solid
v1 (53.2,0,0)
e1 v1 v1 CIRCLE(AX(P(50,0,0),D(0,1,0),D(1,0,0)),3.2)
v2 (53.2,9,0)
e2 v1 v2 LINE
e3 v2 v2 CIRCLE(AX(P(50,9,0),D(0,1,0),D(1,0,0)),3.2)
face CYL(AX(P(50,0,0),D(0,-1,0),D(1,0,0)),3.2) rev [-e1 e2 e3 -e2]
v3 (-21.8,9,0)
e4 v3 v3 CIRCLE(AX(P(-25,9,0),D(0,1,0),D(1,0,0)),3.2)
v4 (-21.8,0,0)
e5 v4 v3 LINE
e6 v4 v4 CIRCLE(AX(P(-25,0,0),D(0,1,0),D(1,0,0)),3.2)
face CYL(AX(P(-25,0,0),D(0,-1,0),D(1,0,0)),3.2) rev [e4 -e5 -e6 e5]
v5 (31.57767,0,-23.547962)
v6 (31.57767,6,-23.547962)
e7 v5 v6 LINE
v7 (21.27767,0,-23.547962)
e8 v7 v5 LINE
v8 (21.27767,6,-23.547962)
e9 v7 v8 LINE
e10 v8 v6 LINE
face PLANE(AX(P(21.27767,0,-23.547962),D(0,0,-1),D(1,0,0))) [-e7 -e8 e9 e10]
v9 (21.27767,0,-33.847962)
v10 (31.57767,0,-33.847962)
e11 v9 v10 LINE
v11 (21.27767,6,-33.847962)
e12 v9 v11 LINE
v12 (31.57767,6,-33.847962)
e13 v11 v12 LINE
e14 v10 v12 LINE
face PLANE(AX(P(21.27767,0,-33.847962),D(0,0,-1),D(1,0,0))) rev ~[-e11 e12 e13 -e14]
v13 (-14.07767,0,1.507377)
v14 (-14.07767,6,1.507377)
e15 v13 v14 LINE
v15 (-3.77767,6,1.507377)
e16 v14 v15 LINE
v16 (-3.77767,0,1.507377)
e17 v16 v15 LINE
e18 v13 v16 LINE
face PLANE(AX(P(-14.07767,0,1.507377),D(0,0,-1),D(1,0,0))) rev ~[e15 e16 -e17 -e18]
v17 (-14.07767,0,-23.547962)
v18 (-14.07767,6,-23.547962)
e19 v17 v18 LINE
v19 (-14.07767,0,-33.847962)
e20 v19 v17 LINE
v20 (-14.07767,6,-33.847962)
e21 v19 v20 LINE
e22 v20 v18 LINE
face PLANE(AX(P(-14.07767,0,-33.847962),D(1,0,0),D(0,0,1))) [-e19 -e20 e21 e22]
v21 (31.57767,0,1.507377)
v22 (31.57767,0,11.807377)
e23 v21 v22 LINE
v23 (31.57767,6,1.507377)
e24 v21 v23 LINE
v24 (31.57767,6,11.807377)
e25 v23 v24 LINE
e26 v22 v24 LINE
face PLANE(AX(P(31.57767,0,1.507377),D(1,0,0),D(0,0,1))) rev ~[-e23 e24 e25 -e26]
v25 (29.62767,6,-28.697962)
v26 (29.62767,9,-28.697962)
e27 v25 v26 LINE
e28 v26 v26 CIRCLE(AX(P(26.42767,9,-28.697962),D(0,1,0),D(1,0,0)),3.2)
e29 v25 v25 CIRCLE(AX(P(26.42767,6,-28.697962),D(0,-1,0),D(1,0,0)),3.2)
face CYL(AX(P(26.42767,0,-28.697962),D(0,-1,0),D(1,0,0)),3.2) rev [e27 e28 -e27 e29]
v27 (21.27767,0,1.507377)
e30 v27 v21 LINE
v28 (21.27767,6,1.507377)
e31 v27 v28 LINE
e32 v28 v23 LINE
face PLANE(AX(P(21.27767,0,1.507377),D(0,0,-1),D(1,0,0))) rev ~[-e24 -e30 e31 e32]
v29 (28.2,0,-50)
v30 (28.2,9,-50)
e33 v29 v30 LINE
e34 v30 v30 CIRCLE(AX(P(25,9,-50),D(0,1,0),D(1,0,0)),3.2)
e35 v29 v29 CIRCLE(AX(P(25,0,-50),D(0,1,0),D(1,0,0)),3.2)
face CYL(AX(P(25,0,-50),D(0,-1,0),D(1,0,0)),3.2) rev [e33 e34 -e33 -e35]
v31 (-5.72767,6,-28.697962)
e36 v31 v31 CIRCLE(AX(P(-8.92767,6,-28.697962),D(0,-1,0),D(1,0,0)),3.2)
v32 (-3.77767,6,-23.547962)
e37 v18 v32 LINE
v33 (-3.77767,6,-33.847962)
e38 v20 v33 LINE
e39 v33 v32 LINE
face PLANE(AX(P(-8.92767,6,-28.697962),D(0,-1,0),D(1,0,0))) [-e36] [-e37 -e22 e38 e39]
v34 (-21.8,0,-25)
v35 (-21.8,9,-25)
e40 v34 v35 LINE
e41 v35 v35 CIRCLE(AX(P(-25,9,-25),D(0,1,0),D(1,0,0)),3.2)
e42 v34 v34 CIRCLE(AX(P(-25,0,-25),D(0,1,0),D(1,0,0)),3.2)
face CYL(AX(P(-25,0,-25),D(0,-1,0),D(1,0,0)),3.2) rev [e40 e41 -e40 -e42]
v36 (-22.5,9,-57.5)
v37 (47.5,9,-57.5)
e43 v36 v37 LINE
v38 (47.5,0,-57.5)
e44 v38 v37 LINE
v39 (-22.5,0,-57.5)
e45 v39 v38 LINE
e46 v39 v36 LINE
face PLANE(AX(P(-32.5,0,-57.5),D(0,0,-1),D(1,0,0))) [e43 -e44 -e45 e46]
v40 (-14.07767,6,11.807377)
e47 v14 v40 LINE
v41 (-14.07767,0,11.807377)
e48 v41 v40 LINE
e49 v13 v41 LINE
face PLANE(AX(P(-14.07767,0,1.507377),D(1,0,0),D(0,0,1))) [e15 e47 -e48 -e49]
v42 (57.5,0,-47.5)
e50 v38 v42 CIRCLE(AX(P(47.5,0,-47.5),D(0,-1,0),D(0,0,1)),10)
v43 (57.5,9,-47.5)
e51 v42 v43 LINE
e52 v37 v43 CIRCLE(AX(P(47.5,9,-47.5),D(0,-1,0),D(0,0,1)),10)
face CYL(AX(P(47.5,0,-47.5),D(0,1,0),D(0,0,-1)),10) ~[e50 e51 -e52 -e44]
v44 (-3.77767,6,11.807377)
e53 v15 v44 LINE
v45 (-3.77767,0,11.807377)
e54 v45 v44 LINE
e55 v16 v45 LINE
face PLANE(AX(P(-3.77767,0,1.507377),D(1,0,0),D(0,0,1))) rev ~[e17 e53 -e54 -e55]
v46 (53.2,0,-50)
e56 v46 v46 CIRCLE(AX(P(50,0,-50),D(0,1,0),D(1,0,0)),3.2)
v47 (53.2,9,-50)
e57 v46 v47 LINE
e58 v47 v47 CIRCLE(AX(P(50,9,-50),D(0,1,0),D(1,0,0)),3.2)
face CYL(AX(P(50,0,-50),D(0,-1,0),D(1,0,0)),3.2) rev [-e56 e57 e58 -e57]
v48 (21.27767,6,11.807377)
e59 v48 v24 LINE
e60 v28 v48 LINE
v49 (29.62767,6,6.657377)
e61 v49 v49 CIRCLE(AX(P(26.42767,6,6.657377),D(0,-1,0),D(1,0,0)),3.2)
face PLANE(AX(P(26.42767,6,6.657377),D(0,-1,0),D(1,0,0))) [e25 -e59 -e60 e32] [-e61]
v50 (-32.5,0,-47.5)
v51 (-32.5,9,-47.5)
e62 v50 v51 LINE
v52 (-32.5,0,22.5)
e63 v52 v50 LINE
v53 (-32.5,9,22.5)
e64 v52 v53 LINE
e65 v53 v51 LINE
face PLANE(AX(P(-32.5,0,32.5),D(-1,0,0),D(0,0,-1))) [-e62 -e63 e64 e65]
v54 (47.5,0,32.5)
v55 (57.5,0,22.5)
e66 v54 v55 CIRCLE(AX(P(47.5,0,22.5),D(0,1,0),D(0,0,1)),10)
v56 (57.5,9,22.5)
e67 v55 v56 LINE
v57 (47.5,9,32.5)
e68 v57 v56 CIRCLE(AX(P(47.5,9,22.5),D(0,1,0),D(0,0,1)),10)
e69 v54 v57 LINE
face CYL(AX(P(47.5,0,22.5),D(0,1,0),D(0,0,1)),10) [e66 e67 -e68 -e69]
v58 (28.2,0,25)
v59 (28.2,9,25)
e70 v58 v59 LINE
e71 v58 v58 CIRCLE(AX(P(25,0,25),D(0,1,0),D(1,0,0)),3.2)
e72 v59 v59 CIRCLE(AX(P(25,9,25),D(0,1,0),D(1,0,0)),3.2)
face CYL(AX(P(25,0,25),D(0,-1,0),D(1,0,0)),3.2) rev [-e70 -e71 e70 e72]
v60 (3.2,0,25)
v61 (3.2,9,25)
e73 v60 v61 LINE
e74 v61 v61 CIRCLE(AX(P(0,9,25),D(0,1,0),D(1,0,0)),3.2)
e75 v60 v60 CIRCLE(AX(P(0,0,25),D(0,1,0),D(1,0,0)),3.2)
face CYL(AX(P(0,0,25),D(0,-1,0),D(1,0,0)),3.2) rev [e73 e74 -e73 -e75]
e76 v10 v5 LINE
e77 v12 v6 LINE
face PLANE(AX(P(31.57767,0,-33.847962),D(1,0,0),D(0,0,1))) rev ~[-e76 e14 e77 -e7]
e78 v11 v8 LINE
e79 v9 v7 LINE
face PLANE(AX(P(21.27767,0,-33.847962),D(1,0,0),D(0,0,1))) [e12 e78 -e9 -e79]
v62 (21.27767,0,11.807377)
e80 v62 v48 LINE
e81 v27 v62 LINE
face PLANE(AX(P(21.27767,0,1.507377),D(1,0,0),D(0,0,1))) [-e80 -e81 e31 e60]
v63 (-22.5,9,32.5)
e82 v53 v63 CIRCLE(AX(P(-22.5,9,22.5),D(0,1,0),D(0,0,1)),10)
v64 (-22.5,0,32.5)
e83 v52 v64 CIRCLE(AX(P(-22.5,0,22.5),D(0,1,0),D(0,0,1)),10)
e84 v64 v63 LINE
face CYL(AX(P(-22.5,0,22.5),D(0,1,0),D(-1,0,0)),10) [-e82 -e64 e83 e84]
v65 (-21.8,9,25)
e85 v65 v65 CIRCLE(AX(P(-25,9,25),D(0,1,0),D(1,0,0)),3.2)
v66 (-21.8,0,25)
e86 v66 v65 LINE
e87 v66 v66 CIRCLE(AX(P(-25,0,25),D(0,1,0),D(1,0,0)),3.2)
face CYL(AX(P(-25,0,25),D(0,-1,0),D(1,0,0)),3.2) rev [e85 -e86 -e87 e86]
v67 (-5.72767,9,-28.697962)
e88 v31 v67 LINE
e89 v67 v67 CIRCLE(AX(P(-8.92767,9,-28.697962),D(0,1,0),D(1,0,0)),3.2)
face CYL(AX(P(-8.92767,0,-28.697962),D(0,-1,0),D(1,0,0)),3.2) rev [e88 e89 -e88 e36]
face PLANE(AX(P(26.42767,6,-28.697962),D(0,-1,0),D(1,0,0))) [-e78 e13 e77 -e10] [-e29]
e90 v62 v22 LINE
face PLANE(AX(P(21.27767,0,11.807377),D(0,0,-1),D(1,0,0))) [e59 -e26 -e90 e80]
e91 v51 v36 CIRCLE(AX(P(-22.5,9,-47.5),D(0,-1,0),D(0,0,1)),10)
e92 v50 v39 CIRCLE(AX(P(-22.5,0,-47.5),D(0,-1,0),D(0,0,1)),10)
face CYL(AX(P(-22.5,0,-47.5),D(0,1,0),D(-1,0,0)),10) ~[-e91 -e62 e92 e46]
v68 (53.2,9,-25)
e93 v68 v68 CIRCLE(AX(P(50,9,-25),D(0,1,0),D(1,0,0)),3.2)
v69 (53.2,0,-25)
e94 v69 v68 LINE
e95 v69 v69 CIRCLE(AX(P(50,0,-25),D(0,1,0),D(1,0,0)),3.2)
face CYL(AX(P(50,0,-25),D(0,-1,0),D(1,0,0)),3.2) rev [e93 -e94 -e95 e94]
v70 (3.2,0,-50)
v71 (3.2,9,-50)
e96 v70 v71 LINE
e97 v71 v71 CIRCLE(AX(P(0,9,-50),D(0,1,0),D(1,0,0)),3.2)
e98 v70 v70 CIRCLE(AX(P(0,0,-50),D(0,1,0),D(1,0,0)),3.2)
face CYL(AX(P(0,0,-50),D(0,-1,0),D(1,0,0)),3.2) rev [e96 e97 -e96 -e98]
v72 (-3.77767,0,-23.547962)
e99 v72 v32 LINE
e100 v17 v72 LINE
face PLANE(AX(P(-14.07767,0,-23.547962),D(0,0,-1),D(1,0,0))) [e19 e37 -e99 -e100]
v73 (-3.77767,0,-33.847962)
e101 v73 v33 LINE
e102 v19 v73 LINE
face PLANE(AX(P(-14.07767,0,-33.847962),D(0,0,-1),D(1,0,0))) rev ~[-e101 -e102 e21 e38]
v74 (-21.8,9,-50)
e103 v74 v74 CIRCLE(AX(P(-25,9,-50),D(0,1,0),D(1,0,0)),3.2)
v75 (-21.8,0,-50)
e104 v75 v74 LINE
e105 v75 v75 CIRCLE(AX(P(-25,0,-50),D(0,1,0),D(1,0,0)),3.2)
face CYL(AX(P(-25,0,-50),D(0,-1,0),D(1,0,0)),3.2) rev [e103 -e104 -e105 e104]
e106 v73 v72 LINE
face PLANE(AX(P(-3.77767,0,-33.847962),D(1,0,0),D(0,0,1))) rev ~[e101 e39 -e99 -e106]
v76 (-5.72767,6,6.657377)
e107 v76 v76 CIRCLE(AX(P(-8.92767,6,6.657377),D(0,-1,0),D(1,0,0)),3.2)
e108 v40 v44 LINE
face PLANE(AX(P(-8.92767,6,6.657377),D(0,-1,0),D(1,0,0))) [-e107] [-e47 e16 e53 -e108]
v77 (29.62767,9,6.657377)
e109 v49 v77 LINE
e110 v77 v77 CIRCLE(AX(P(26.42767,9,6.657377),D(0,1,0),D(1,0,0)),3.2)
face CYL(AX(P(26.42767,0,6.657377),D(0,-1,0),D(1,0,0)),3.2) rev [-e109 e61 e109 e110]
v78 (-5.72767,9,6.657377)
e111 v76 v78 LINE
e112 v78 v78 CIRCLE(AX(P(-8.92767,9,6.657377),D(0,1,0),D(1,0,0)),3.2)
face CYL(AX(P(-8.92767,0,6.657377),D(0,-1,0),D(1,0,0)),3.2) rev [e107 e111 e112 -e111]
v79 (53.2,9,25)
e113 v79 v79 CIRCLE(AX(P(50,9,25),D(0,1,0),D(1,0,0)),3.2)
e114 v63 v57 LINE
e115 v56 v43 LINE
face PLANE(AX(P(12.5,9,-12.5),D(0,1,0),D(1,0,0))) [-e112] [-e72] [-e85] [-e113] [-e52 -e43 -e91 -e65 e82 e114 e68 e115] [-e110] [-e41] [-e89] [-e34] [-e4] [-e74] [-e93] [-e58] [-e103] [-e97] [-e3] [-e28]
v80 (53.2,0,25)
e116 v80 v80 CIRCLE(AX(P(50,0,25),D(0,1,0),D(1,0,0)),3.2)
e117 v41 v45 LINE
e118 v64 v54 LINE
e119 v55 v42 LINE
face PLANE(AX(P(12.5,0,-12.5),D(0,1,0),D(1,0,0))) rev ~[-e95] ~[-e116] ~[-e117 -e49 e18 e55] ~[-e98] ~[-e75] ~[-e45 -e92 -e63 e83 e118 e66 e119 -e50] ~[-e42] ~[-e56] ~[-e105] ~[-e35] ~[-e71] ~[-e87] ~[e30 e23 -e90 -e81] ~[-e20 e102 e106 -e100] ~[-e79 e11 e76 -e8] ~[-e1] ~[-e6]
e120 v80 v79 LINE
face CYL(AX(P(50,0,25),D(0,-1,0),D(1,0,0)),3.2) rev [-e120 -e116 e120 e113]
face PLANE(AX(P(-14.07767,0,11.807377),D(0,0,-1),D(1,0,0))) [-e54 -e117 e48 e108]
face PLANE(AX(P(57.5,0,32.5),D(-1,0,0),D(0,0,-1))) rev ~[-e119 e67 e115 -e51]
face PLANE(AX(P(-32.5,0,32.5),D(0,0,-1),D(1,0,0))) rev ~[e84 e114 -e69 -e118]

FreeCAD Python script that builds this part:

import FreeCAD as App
import Part
import Sketcher
from FreeCAD import Vector
Q = App.Units.Quantity


def edges_at(feature, points):
    """Names of the edges that pass closest to the given points."""
    edges = feature.Shape.Edges
    near = lambda p: min(range(len(edges)), key=lambda i: edges[i].distToShape(Part.Vertex(*p))[0])
    return sorted({f"Edge{near(p) + 1}" for p in points})

doc = App.newDocument("Part")
body = doc.addObject("PartDesign::Body", "Body")

sketch1 = body.newObject("Sketcher::SketchObject", "Sketch")
sketch1.AttachmentSupport = (doc.getObject("XZ_Plane"), [""])
sketch1.MapMode = "FlatFace"
sketch1.addGeometry(Part.LineSegment(Vector(-32.5, -57.5, 0), Vector(-32.5, 32.5, 0)), False)
sketch1.addGeometry(Part.LineSegment(Vector(-32.5, 32.5, 0), Vector(57.5, 32.5, 0)), False)
sketch1.addGeometry(Part.LineSegment(Vector(57.5, 32.5, 0), Vector(57.5, -57.5, 0)), False)
sketch1.addGeometry(Part.LineSegment(Vector(57.5, -57.5, 0), Vector(-32.5, -57.5, 0)), False)
sketch1.addGeometry(Part.Circle(Vector(-25, 25, 0), Vector(0, 0, 1), 3.2), False)
sketch1.addGeometry(Part.Circle(Vector(0, 25, 0), Vector(0, 0, 1), 3.2), False)
sketch1.addGeometry(Part.Circle(Vector(-25, 0, 0), Vector(0, 0, 1), 3.2), False)
sketch1.addGeometry(Part.Circle(Vector(-8.92767, 6.657377, 0), Vector(0, 0, 1), 3.2), False)
sketch1.addGeometry(Part.Circle(Vector(25, 25, 0), Vector(0, 0, 1), 3.2), False)
sketch1.addGeometry(Part.Circle(Vector(50, 25, 0), Vector(0, 0, 1), 3.2), False)
sketch1.addGeometry(Part.Circle(Vector(26.42767, 6.657377, 0), Vector(0, 0, 1), 3.2), False)
sketch1.addGeometry(Part.Circle(Vector(50, 0, 0), Vector(0, 0, 1), 3.2), False)
sketch1.addGeometry(Part.Circle(Vector(-25, -25, 0), Vector(0, 0, 1), 3.2), False)
sketch1.addGeometry(Part.Circle(Vector(-8.92767, -28.697962, 0), Vector(0, 0, 1), 3.2), False)
sketch1.addGeometry(Part.Circle(Vector(-25, -50, 0), Vector(0, 0, 1), 3.2), False)
sketch1.addGeometry(Part.Circle(Vector(0, -50, 0), Vector(0, 0, 1), 3.2), False)
sketch1.addGeometry(Part.Circle(Vector(26.42767, -28.697962, 0), Vector(0, 0, 1), 3.2), False)
sketch1.addGeometry(Part.Circle(Vector(50, -25, 0), Vector(0, 0, 1), 3.2), False)
sketch1.addGeometry(Part.Circle(Vector(25, -50, 0), Vector(0, 0, 1), 3.2), False)
sketch1.addGeometry(Part.Circle(Vector(50, -50, 0), Vector(0, 0, 1), 3.2), False)
sketch1.addConstraint(Sketcher.Constraint("Coincident", 0, 2, 1, 1))
sketch1.addConstraint(Sketcher.Constraint("Coincident", 1, 2, 2, 1))
sketch1.addConstraint(Sketcher.Constraint("Coincident", 2, 2, 3, 1))
sketch1.addConstraint(Sketcher.Constraint("Coincident", 3, 2, 0, 1))
sketch1.addConstraint(Sketcher.Constraint("Vertical", 0))
sketch1.addConstraint(Sketcher.Constraint("Horizontal", 1))
sketch1.addConstraint(Sketcher.Constraint("Vertical", 2))
sketch1.addConstraint(Sketcher.Constraint("Horizontal", 3))
sketch1.addConstraint(Sketcher.Constraint("Equal", 4, 5))
sketch1.addConstraint(Sketcher.Constraint("Equal", 5, 6))
sketch1.addConstraint(Sketcher.Constraint("Equal", 6, 7))
sketch1.addConstraint(Sketcher.Constraint("Equal", 7, 8))
sketch1.addConstraint(Sketcher.Constraint("Equal", 8, 9))
sketch1.addConstraint(Sketcher.Constraint("Equal", 9, 10))
sketch1.addConstraint(Sketcher.Constraint("Equal", 10, 11))
sketch1.addConstraint(Sketcher.Constraint("Equal", 11, 12))
sketch1.addConstraint(Sketcher.Constraint("Equal", 12, 13))
sketch1.addConstraint(Sketcher.Constraint("Equal", 13, 14))
sketch1.addConstraint(Sketcher.Constraint("Equal", 14, 15))
sketch1.addConstraint(Sketcher.Constraint("Equal", 15, 16))
sketch1.addConstraint(Sketcher.Constraint("Equal", 16, 17))
sketch1.addConstraint(Sketcher.Constraint("Equal", 17, 18))
sketch1.addConstraint(Sketcher.Constraint("Equal", 18, 19))
sketch1.addConstraint(Sketcher.Constraint("Symmetric", 8, 3, 12, 3, -1, 1))
sketch1.addConstraint(Sketcher.Constraint("Symmetric", 4, 3, 8, 3, -2))
sketch1.addConstraint(Sketcher.Constraint("Symmetric", 14, 3, 18, 3, -2))
sketch1.addConstraint(Sketcher.Constraint("Symmetric", 9, 3, 17, 3, -1))
sketch1.addConstraint(Sketcher.Constraint("PointOnObject", 5, 3, -2))
sketch1.addConstraint(Sketcher.Constraint("PointOnObject", 6, 3, -1))
sketch1.addConstraint(Sketcher.Constraint("PointOnObject", 11, 3, -1))
sketch1.addConstraint(Sketcher.Constraint("PointOnObject", 15, 3, -2))
sketch1.addConstraint(Sketcher.Constraint("Horizontal", 4, 3, 5, 3))
sketch1.addConstraint(Sketcher.Constraint("Horizontal", 8, 3, 9, 3))
sketch1.addConstraint(Sketcher.Constraint("Horizontal", 7, 3, 10, 3))
sketch1.addConstraint(Sketcher.Constraint("Horizontal", 14, 3, 15, 3))
sketch1.addConstraint(Sketcher.Constraint("Horizontal", 13, 3, 16, 3))
sketch1.addConstraint(Sketcher.Constraint("Horizontal", 18, 3, 19, 3))
sketch1.addConstraint(Sketcher.Constraint("Vertical", 4, 3, 6, 3))
sketch1.addConstraint(Sketcher.Constraint("Vertical", 9, 3, 11, 3))
sketch1.addConstraint(Sketcher.Constraint("Vertical", 7, 3, 13, 3))
sketch1.addConstraint(Sketcher.Constraint("Vertical", 12, 3, 14, 3))
sketch1.addConstraint(Sketcher.Constraint("Vertical", 10, 3, 16, 3))
sketch1.addConstraint(Sketcher.Constraint("Vertical", 17, 3, 19, 3))
sketch1.addConstraint(Sketcher.Constraint("Equal", 3, 0))
sketch1.addConstraint(Sketcher.Constraint("Diameter", 4, Q("6.4 mm")))
sketch1.addConstraint(Sketcher.Constraint("DistanceX", 1, 1, 1, 2, Q("90 mm")))
sketch1.addConstraint(Sketcher.Constraint("DistanceX", 4, 3, -1, 1, Q("25 mm")))
sketch1.addConstraint(Sketcher.Constraint("DistanceY", -1, 1, 4, 3, Q("25 mm")))
sketch1.addConstraint(Sketcher.Constraint("DistanceX", -1, 1, 9, 3, Q("50 mm")))
sketch1.addConstraint(Sketcher.Constraint("DistanceY", 14, 3, -1, 1, Q("50 mm")))
sketch1.addConstraint(Sketcher.Constraint("DistanceX", 0, 2, -1, 1, Q("32.5 mm")))
sketch1.addConstraint(Sketcher.Constraint("DistanceY", -1, 1, 0, 2, Q("32.5 mm")))
sketch1.addConstraint(Sketcher.Constraint("DistanceX", 7, 3, -1, 1, Q("8.92767 mm")))
sketch1.addConstraint(Sketcher.Constraint("DistanceX", -1, 1, 10, 3, Q("26.42767 mm")))
sketch1.addConstraint(Sketcher.Constraint("DistanceY", 13, 3, -1, 1, Q("28.697962 mm")))
sketch1.addConstraint(Sketcher.Constraint("DistanceY", 13, 3, 7, 3, Q("35.355339 mm")))
pad1 = body.newObject("PartDesign::Pad", "Pad")
pad1.Profile = sketch1
pad1.Length = 9
pad1.Reversed = True

sketch2 = body.newObject("Sketcher::SketchObject", "Sketch001")
sketch2.AttachmentSupport = (doc.getObject("XZ_Plane"), [""])
sketch2.MapMode = "FlatFace"
sketch2.addGeometry(Part.LineSegment(Vector(-14.07767, 11.807377, 0), Vector(-14.07767, 1.507377, 0)), False)
sketch2.addGeometry(Part.LineSegment(Vector(-14.07767, 1.507377, 0), Vector(-3.77767, 1.507377, 0)), False)
sketch2.addGeometry(Part.LineSegment(Vector(-3.77767, 1.507377, 0), Vector(-3.77767, 11.807377, 0)), False)
sketch2.addGeometry(Part.LineSegment(Vector(-3.77767, 11.807377, 0), Vector(-14.07767, 11.807377, 0)), False)
sketch2.addGeometry(Part.LineSegment(Vector(21.27767, 11.807377, 0), Vector(21.27767, 1.507377, 0)), False)
sketch2.addGeometry(Part.LineSegment(Vector(21.27767, 1.507377, 0), Vector(31.57767, 1.507377, 0)), False)
sketch2.addGeometry(Part.LineSegment(Vector(31.57767, 1.507377, 0), Vector(31.57767, 11.807377, 0)), False)
sketch2.addGeometry(Part.LineSegment(Vector(31.57767, 11.807377, 0), Vector(21.27767, 11.807377, 0)), False)
sketch2.addGeometry(Part.LineSegment(Vector(21.27767, -23.547962, 0), Vector(21.27767, -33.847962, 0)), False)
sketch2.addGeometry(Part.LineSegment(Vector(21.27767, -33.847962, 0), Vector(31.57767, -33.847962, 0)), False)
sketch2.addGeometry(Part.LineSegment(Vector(31.57767, -33.847962, 0), Vector(31.57767, -23.547962, 0)), False)
sketch2.addGeometry(Part.LineSegment(Vector(31.57767, -23.547962, 0), Vector(21.27767, -23.547962, 0)), False)
sketch2.addGeometry(Part.LineSegment(Vector(-14.07767, -23.547962, 0), Vector(-14.07767, -33.847962, 0)), False)
sketch2.addGeometry(Part.LineSegment(Vector(-14.07767, -33.847962, 0), Vector(-3.77767, -33.847962, 0)), False)
sketch2.addGeometry(Part.LineSegment(Vector(-3.77767, -33.847962, 0), Vector(-3.77767, -23.547962, 0)), False)
sketch2.addGeometry(Part.LineSegment(Vector(-3.77767, -23.547962, 0), Vector(-14.07767, -23.547962, 0)), False)
sketch2.addConstraint(Sketcher.Constraint("Coincident", 0, 2, 1, 1))
sketch2.addConstraint(Sketcher.Constraint("Coincident", 1, 2, 2, 1))
sketch2.addConstraint(Sketcher.Constraint("Coincident", 2, 2, 3, 1))
sketch2.addConstraint(Sketcher.Constraint("Coincident", 3, 2, 0, 1))
sketch2.addConstraint(Sketcher.Constraint("Coincident", 4, 2, 5, 1))
sketch2.addConstraint(Sketcher.Constraint("Coincident", 5, 2, 6, 1))
sketch2.addConstraint(Sketcher.Constraint("Coincident", 6, 2, 7, 1))
sketch2.addConstraint(Sketcher.Constraint("Coincident", 7, 2, 4, 1))
sketch2.addConstraint(Sketcher.Constraint("Coincident", 8, 2, 9, 1))
sketch2.addConstraint(Sketcher.Constraint("Coincident", 9, 2, 10, 1))
sketch2.addConstraint(Sketcher.Constraint("Coincident", 10, 2, 11, 1))
sketch2.addConstraint(Sketcher.Constraint("Coincident", 11, 2, 8, 1))
sketch2.addConstraint(Sketcher.Constraint("Coincident", 12, 2, 13, 1))
sketch2.addConstraint(Sketcher.Constraint("Coincident", 13, 2, 14, 1))
sketch2.addConstraint(Sketcher.Constraint("Coincident", 14, 2, 15, 1))
sketch2.addConstraint(Sketcher.Constraint("Coincident", 15, 2, 12, 1))
sketch2.addConstraint(Sketcher.Constraint("Vertical", 0))
sketch2.addConstraint(Sketcher.Constraint("Horizontal", 1))
sketch2.addConstraint(Sketcher.Constraint("Vertical", 2))
sketch2.addConstraint(Sketcher.Constraint("Horizontal", 3))
sketch2.addConstraint(Sketcher.Constraint("Vertical", 4))
sketch2.addConstraint(Sketcher.Constraint("Horizontal", 5))
sketch2.addConstraint(Sketcher.Constraint("Vertical", 6))
sketch2.addConstraint(Sketcher.Constraint("Horizontal", 7))
sketch2.addConstraint(Sketcher.Constraint("Vertical", 8))
sketch2.addConstraint(Sketcher.Constraint("Horizontal", 9))
sketch2.addConstraint(Sketcher.Constraint("Vertical", 10))
sketch2.addConstraint(Sketcher.Constraint("Horizontal", 11))
sketch2.addConstraint(Sketcher.Constraint("Vertical", 12))
sketch2.addConstraint(Sketcher.Constraint("Horizontal", 13))
sketch2.addConstraint(Sketcher.Constraint("Vertical", 14))
sketch2.addConstraint(Sketcher.Constraint("Horizontal", 15))
sketch2.addConstraint(Sketcher.Constraint("Horizontal", 1, 2, 4, 2))
sketch2.addConstraint(Sketcher.Constraint("Horizontal", 3, 2, 6, 2))
sketch2.addConstraint(Sketcher.Constraint("Horizontal", 9, 2, 12, 2))
sketch2.addConstraint(Sketcher.Constraint("Horizontal", 11, 2, 14, 2))
sketch2.addConstraint(Sketcher.Constraint("Vertical", 7, 2, 8, 2))
sketch2.addConstraint(Sketcher.Constraint("Vertical", 6, 2, 9, 2))
sketch2.addConstraint(Sketcher.Constraint("Vertical", 3, 2, 12, 2))
sketch2.addConstraint(Sketcher.Constraint("Vertical", 2, 2, 13, 2))
sketch2.addConstraint(Sketcher.Constraint("Equal", 3, 5))
sketch2.addConstraint(Sketcher.Constraint("Equal", 15, 0))
sketch2.addConstraint(Sketcher.Constraint("Equal", 6, 8))
sketch2.addConstraint(Sketcher.Constraint("DistanceX", 1, 1, 1, 2, Q("10.3 mm")))
sketch2.addConstraint(Sketcher.Constraint("DistanceX", 0, 2, -1, 1, Q("14.07767 mm")))
sketch2.addConstraint(Sketcher.Constraint("DistanceX", -1, 1, 4, 2, Q("21.27767 mm")))
sketch2.addConstraint(Sketcher.Constraint("DistanceY", 8, 2, -1, 1, Q("33.847962 mm")))
sketch2.addConstraint(Sketcher.Constraint("DistanceY", 8, 2, 4, 2, Q("35.355339 mm")))
pocket1 = body.newObject("PartDesign::Pocket", "Pocket")
pocket1.Profile = sketch2
pocket1.Length = 6
doc.recompute()

fillet = body.newObject("PartDesign::Fillet", "Fillet")
fillet.Base = (pocket1, edges_at(pocket1, [
    (-32.5, 4.5, 32.5),
    (-32.5, 4.5, -57.5),
    (57.5, 4.5, -57.5),
    (57.5, 4.5, 32.5),
]))
fillet.Radius = 10

doc.recompute()
